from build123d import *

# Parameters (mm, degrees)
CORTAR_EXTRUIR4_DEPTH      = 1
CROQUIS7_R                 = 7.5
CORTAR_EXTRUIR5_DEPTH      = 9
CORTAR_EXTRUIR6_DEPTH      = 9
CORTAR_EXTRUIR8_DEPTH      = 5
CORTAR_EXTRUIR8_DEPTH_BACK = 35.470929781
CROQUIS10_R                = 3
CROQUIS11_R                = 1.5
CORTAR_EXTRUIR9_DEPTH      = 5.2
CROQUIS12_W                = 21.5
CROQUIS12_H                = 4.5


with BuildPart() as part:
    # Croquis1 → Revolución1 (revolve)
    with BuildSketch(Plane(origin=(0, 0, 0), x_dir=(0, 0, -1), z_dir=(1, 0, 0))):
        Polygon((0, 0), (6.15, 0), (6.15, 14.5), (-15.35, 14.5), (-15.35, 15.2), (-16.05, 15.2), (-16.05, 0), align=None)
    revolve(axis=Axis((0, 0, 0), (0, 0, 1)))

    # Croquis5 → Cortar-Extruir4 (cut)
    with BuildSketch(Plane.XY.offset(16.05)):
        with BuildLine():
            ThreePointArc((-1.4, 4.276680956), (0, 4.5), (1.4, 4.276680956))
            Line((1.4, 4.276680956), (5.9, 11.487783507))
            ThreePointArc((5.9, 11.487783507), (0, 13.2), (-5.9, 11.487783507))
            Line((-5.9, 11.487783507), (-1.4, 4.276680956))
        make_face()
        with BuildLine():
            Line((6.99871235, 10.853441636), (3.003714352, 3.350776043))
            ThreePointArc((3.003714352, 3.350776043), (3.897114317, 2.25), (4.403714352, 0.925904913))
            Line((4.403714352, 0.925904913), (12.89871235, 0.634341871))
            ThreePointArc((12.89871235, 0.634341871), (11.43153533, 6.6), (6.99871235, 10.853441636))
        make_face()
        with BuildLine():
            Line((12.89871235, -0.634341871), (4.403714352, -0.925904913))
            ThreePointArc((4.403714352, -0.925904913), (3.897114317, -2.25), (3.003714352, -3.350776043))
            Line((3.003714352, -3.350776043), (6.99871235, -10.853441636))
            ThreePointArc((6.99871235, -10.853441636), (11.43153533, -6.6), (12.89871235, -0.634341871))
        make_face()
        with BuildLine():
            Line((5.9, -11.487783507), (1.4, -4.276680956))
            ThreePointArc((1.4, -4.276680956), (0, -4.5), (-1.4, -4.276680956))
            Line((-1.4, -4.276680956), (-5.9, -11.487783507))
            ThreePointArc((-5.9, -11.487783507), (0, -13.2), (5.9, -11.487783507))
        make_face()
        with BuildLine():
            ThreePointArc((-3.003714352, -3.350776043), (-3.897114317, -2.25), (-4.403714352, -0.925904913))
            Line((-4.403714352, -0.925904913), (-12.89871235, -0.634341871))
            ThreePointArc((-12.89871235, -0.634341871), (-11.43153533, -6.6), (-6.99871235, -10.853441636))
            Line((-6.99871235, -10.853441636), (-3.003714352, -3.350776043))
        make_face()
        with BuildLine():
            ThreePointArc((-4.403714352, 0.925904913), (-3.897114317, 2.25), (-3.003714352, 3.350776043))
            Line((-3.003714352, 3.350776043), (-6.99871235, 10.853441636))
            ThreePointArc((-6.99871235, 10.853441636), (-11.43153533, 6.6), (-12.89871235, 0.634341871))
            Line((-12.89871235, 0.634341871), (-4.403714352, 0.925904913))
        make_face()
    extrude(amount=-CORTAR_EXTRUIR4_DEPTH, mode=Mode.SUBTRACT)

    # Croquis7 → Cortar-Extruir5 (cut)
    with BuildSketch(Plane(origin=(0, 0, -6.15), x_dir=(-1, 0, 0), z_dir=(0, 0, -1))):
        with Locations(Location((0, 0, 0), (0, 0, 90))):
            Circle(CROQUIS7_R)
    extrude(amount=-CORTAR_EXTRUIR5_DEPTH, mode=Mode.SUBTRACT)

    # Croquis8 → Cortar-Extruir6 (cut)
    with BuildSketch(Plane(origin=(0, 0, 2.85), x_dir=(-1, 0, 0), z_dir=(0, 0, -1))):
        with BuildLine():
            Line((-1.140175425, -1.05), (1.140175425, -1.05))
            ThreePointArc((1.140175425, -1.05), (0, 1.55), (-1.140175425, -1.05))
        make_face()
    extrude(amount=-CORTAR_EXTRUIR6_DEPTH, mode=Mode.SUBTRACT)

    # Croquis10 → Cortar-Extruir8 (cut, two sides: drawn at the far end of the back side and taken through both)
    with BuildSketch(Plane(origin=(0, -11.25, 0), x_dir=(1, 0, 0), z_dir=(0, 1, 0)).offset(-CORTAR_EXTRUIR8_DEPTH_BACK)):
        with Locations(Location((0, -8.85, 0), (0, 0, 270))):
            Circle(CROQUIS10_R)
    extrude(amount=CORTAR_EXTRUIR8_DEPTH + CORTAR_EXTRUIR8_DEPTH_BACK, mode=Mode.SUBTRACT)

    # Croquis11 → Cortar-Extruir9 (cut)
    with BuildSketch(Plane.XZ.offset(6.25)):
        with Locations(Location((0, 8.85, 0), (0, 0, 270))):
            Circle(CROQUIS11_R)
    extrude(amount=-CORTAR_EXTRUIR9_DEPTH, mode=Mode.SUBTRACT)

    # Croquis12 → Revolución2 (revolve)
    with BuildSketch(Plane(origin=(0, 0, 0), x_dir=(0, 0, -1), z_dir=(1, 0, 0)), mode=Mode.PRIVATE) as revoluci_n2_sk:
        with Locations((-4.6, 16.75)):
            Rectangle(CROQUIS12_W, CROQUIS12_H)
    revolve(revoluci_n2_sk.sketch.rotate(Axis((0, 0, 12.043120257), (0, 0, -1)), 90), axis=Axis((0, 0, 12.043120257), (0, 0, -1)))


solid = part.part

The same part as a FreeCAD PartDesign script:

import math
import FreeCAD as App
import Part
import Sketcher

V = App.Vector
Q = App.Units.Quantity


def add_polygon(sketch, points):
    """Adds a closed chain of lines whose ends are joined by coincident constraints."""
    first, n = sketch.GeometryCount, len(points)
    for a, b in zip(points, points[1:] + points[:1]):
        sketch.addGeometry(Part.LineSegment(App.Vector(*a, 0), App.Vector(*b, 0)), False)
    for i in range(n):
        sketch.addConstraint(Sketcher.Constraint("Coincident", first + i, 2, first + (i + 1) % n, 1))

doc = App.newDocument("Part")
body = doc.addObject("PartDesign::Body", "Body")

sketch1 = doc.addObject("Sketcher::SketchObject", "Sketch")
body.addObject(sketch1)
sketch1.AttachmentSupport = (doc.YZ_Plane, [""])
sketch1.MapMode = "FlatFace"
add_polygon(sketch1, [(0, -6.2), (14.5, -6.2), (14.5, 15.3), (15.2, 15.3), (15.2, 16.1), (0, 16.1)])
sketch1.addConstraint(Sketcher.Constraint("Horizontal", 0))
sketch1.addConstraint(Sketcher.Constraint("Vertical", 1))
sketch1.addConstraint(Sketcher.Constraint("Horizontal", 2))
sketch1.addConstraint(Sketcher.Constraint("Vertical", 3))
sketch1.addConstraint(Sketcher.Constraint("Horizontal", 4))
sketch1.addConstraint(Sketcher.Constraint("Vertical", 5))
sketch1.addConstraint(Sketcher.Constraint("PointOnObject", 4, 2, -2))
sketch1.addConstraint(Sketcher.Constraint("Equal", 2, 3))
sketch1.addConstraint(Sketcher.Constraint("DistanceX", 0, 1, 0, 2, Q("14.5 mm")))
sketch1.addConstraint(Sketcher.Constraint("DistanceX", 2, 1, 2, 2, Q("0.7 mm")))
sketch1.addConstraint(Sketcher.Constraint("DistanceY", 1, 1, 1, 2, Q("21.5 mm")))
sketch1.addConstraint(Sketcher.Constraint("DistanceY", 0, 2, -1, 1, Q("6.15 mm")))
revolution = doc.addObject("PartDesign::Revolution", "Revolution")
body.addObject(revolution)
revolution.Profile = sketch1
revolution.ReferenceAxis = (sketch1, ["V_Axis"])
revolution.Angle = 360

sketch2 = doc.addObject("Sketcher::SketchObject", "Sketch001")
body.addObject(sketch2)
sketch2.AttachmentSupport = (doc.XY_Plane, [""])
sketch2.MapMode = "FlatFace"
sketch2.AttachmentOffset = App.Placement(V(0, 0, 16.05), App.Rotation())
sketch2.addGeometry(Part.ArcOfCircle(Part.Circle(V(0, 0, 0), V(0, 0, 1), 4.5), math.radians(72), math.radians(108)), False)
sketch2.addGeometry(Part.LineSegment(V(1.4, 4.3, 0), V(5.9, 11.5, 0)), False)
sketch2.addGeometry(Part.ArcOfCircle(Part.Circle(V(0, 2.2, 0), V(0, 0, 1), 11), math.radians(58), math.radians(122)), False)
sketch2.addGeometry(Part.LineSegment(V(-5.9, 11.5, 0), V(-1.4, 4.3, 0)), False)
sketch2.addGeometry(Part.LineSegment(V(7, 10.9, 0), V(3, 3.4, 0)), False)
sketch2.addGeometry(Part.ArcOfCircle(Part.Circle(V(0, 0, 0), V(0, 0, 1), 4.5), math.radians(12), math.radians(48)), False)
sketch2.addGeometry(Part.LineSegment(V(4.4, 0.9, 0), V(12.9, 0.6, 0)), False)
sketch2.addGeometry(Part.ArcOfCircle(Part.Circle(V(1.9, 1.1, 0), V(0, 0, 1), 11), math.radians(-2), math.radians(62)), False)
sketch2.addGeometry(Part.LineSegment(V(12.9, -0.6, 0), V(4.4, -0.9, 0)), False)
sketch2.addGeometry(Part.ArcOfCircle(Part.Circle(V(0, 0, 0), V(0, 0, 1), 4.5), math.radians(-48), math.radians(-12)), False)
sketch2.addGeometry(Part.LineSegment(V(3, -3.4, 0), V(7, -10.9, 0)), False)
sketch2.addGeometry(Part.ArcOfCircle(Part.Circle(V(1.9, -1.1, 0), V(0, 0, 1), 11), math.radians(-62), math.radians(2)), False)
sketch2.addGeometry(Part.LineSegment(V(5.9, -11.5, 0), V(1.4, -4.3, 0)), False)
sketch2.addGeometry(Part.ArcOfCircle(Part.Circle(V(0, 0, 0), V(0, 0, 1), 4.5), math.radians(-108), math.radians(-72)), False)
sketch2.addGeometry(Part.LineSegment(V(-1.4, -4.3, 0), V(-5.9, -11.5, 0)), False)
sketch2.addGeometry(Part.ArcOfCircle(Part.Circle(V(0, -2.2, 0), V(0, 0, 1), 11), math.radians(-122), math.radians(-58)), False)
sketch2.addGeometry(Part.ArcOfCircle(Part.Circle(V(0, 0, 0), V(0, 0, 1), 4.5), math.radians(-168), math.radians(-132)), False)
sketch2.addGeometry(Part.LineSegment(V(-4.4, -0.9, 0), V(-12.9, -0.6, 0)), False)
sketch2.addGeometry(Part.ArcOfCircle(Part.Circle(V(-1.9, -1.1, 0), V(0, 0, 1), 11), math.radians(178), math.radians(242)), False)
sketch2.addGeometry(Part.LineSegment(V(-7, -10.9, 0), V(-3, -3.4, 0)), False)
sketch2.addGeometry(Part.ArcOfCircle(Part.Circle(V(0, 0, 0), V(0, 0, 1), 4.5), math.radians(132), math.radians(168)), False)
sketch2.addGeometry(Part.LineSegment(V(-3, 3.4, 0), V(-7, 10.9, 0)), False)
sketch2.addGeometry(Part.ArcOfCircle(Part.Circle(V(-1.9, 1.1, 0), V(0, 0, 1), 11), math.radians(118), math.radians(182)), False)
sketch2.addGeometry(Part.LineSegment(V(-12.9, 0.6, 0), V(-4.4, 0.9, 0)), False)
sketch2.addConstraint(Sketcher.Constraint("Coincident", 0, 1, 1, 1))
sketch2.addConstraint(Sketcher.Constraint("Coincident", 1, 2, 2, 1))
sketch2.addConstraint(Sketcher.Constraint("Coincident", 2, 2, 3, 1))
sketch2.addConstraint(Sketcher.Constraint("Coincident", 3, 2, 0, 2))
sketch2.addConstraint(Sketcher.Constraint("Coincident", 4, 2, 5, 2))
sketch2.addConstraint(Sketcher.Constraint("Coincident", 5, 1, 6, 1))
sketch2.addConstraint(Sketcher.Constraint("Coincident", 6, 2, 7, 1))
sketch2.addConstraint(Sketcher.Constraint("Coincident", 7, 2, 4, 1))
sketch2.addConstraint(Sketcher.Constraint("Coincident", 8, 2, 9, 2))
sketch2.addConstraint(Sketcher.Constraint("Coincident", 9, 1, 10, 1))
sketch2.addConstraint(Sketcher.Constraint("Coincident", 10, 2, 11, 1))
sketch2.addConstraint(Sketcher.Constraint("Coincident", 11, 2, 8, 1))
sketch2.addConstraint(Sketcher.Constraint("Coincident", 12, 2, 13, 2))
sketch2.addConstraint(Sketcher.Constraint("Coincident", 13, 1, 14, 1))
sketch2.addConstraint(Sketcher.Constraint("Coincident", 14, 2, 15, 1))
sketch2.addConstraint(Sketcher.Constraint("Coincident", 15, 2, 12, 1))
sketch2.addConstraint(Sketcher.Constraint("Coincident", 16, 1, 17, 1))
sketch2.addConstraint(Sketcher.Constraint("Coincident", 17, 2, 18, 1))
sketch2.addConstraint(Sketcher.Constraint("Coincident", 18, 2, 19, 1))
sketch2.addConstraint(Sketcher.Constraint("Coincident", 19, 2, 16, 2))
sketch2.addConstraint(Sketcher.Constraint("Coincident", 20, 1, 21, 1))
sketch2.addConstraint(Sketcher.Constraint("Coincident", 21, 2, 22, 1))
sketch2.addConstraint(Sketcher.Constraint("Coincident", 22, 2, 23, 1))
sketch2.addConstraint(Sketcher.Constraint("Coincident", 23, 2, 20, 2))
sketch2.addConstraint(Sketcher.Constraint("Coincident", 0, 3, -1, 1))
sketch2.addConstraint(Sketcher.Constraint("Coincident", 5, 3, -1, 1))
sketch2.addConstraint(Sketcher.Constraint("Coincident", 9, 3, -1, 1))
sketch2.addConstraint(Sketcher.Constraint("Coincident", 13, 3, -1, 1))
sketch2.addConstraint(Sketcher.Constraint("Coincident", 16, 3, -1, 1))
sketch2.addConstraint(Sketcher.Constraint("Coincident", 20, 3, -1, 1))
sketch2.addConstraint(Sketcher.Constraint("Equal", 0, 5))
sketch2.addConstraint(Sketcher.Constraint("Equal", 2, 7))
sketch2.addConstraint(Sketcher.Constraint("Equal", 5, 9))
sketch2.addConstraint(Sketcher.Constraint("Equal", 7, 11))
sketch2.addConstraint(Sketcher.Constraint("Equal", 9, 13))
sketch2.addConstraint(Sketcher.Constraint("Equal", 11, 15))
sketch2.addConstraint(Sketcher.Constraint("Equal", 13, 16))
sketch2.addConstraint(Sketcher.Constraint("Equal", 15, 18))
sketch2.addConstraint(Sketcher.Constraint("Equal", 16, 20))
sketch2.addConstraint(Sketcher.Constraint("Equal", 18, 22))
sketch2.addConstraint(Sketcher.Constraint("Symmetric", 2, 3, 15, 3, -1, 1))
sketch2.addConstraint(Sketcher.Constraint("Symmetric", 7, 3, 18, 3, -1, 1))
sketch2.addConstraint(Sketcher.Constraint("Symmetric", 11, 3, 22, 3, -1, 1))
sketch2.addConstraint(Sketcher.Constraint("Symmetric", 11, 3, 18, 3, -2))
sketch2.addConstraint(Sketcher.Constraint("Symmetric", 1, 2, 2, 2, -2))
sketch2.addConstraint(Sketcher.Constraint("Parallel", 3, 12))
sketch2.addConstraint(Sketcher.Constraint("Parallel", 1, 14))
sketch2.addConstraint(Sketcher.Constraint("Parallel", 6, 17))
sketch2.addConstraint(Sketcher.Constraint("Parallel", 4, 19))
sketch2.addConstraint(Sketcher.Constraint("Parallel", 10, 21))
sketch2.addConstraint(Sketcher.Constraint("Parallel", 8, 23))
sketch2.addConstraint(Sketcher.Constraint("Horizontal", 0, 1, 3, 2))
sketch2.addConstraint(Sketcher.Constraint("Horizontal", 12, 2, 13, 1))
sketch2.addConstraint(Sketcher.Constraint("Horizontal", 8, 2, 16, 1))
sketch2.addConstraint(Sketcher.Constraint("Horizontal", 11, 2, 17, 2))
sketch2.addConstraint(Sketcher.Constraint("Horizontal", 10, 2, 18, 2))
sketch2.addConstraint(Sketcher.Constraint("Horizontal", 9, 1, 19, 2))
sketch2.addConstraint(Sketcher.Constraint("Horizontal", 4, 2, 20, 1))
sketch2.addConstraint(Sketcher.Constraint("Horizontal", 6, 2, 22, 2))
sketch2.addConstraint(Sketcher.Constraint("Vertical", 5, 1, 8, 2))
sketch2.addConstraint(Sketcher.Constraint("Vertical", 4, 2, 9, 1))
sketch2.addConstraint(Sketcher.Constraint("Vertical", 0, 1, 12, 2))
sketch2.addConstraint(Sketcher.Constraint("Equal", 3, 4))
sketch2.addConstraint(Sketcher.Constraint("Equal", 4, 6))
sketch2.addConstraint(Sketcher.Constraint("Radius", 0, Q("4.5 mm")))
sketch2.addConstraint(Sketcher.Constraint("Distance", 1, Q("8.5 mm")))
sketch2.addConstraint(Sketcher.Constraint("DistanceX", -1, 1, 0, 1, Q("1.4 mm")))
sketch2.addConstraint(Sketcher.Constraint("DistanceX", -1, 1, 1, 2, Q("5.9 mm")))
sketch2.addConstraint(Sketcher.Constraint("DistanceX", 4, 2, 5, 1, Q("1.4 mm")))
sketch2.addConstraint(Sketcher.Constraint("Radius", 2, Q("11.021295 mm")))
sketch2.addConstraint(Sketcher.Constraint("DistanceX", 7, 3, 4, 2, Q("1.1169 mm")))
sketch2.addConstraint(Sketcher.Constraint("DistanceX", 7, 3, 6, 2, Q("11.011898 mm")))
sketch2.addConstraint(Sketcher.Constraint("DistanceX", 11, 3, 10, 2, Q("5.111898 mm")))
pocket1 = doc.addObject("PartDesign::Pocket", "Pocket")
body.addObject(pocket1)
pocket1.Profile = sketch2
pocket1.Length = 1

sketch3 = doc.addObject("Sketcher::SketchObject", "Sketch002")
body.addObject(sketch3)
sketch3.AttachmentSupport = (doc.XY_Plane, [""])
sketch3.MapMode = "FlatFace"
sketch3.AttachmentOffset = App.Placement(V(0, 0, -6.15), App.Rotation())
sketch3.addGeometry(Part.Circle(V(0, 0, 0), V(0, 0, 1), 8), False)
sketch3.addConstraint(Sketcher.Constraint("Coincident", 0, 3, -1, 1))
sketch3.addConstraint(Sketcher.Constraint("Diameter", 0, Q("15 mm")))
pocket2 = doc.addObject("PartDesign::Pocket", "Pocket001")
body.addObject(pocket2)
pocket2.Profile = sketch3
pocket2.Length = 9
pocket2.Reversed = True

sketch4 = doc.addObject("Sketcher::SketchObject", "Sketch003")
body.addObject(sketch4)
sketch4.AttachmentSupport = (doc.XY_Plane, [""])
sketch4.MapMode = "FlatFace"
sketch4.AttachmentOffset = App.Placement(V(0, 0, 2.85), App.Rotation())
sketch4.addGeometry(Part.LineSegment(V(1.1, -1.1, 0), V(-1.1, -1.1, 0)), False)
sketch4.addGeometry(Part.ArcOfCircle(Part.Circle(V(0, 0, 0), V(0, 0, 1), 1.6), math.radians(-43), math.radians(223)), False)
sketch4.addConstraint(Sketcher.Constraint("Coincident", 0, 1, 1, 1))
sketch4.addConstraint(Sketcher.Constraint("Coincident", 1, 2, 0, 2))
sketch4.addConstraint(Sketcher.Constraint("Horizontal", 0))
sketch4.addConstraint(Sketcher.Constraint("Coincident", 1, 3, -1, 1))
sketch4.addConstraint(Sketcher.Constraint("Radius", 1, Q("1.55 mm")))
sketch4.addConstraint(Sketcher.Constraint("DistanceY", 0, 1, -1, 1, Q("1.05 mm")))
pocket3 = doc.addObject("PartDesign::Pocket", "Pocket002")
body.addObject(pocket3)
pocket3.Profile = sketch4
pocket3.Length = 9
pocket3.Reversed = True

sketch5 = doc.addObject("Sketcher::SketchObject", "Sketch004")
body.addObject(sketch5)
sketch5.AttachmentSupport = (doc.XZ_Plane, [""])
sketch5.MapMode = "FlatFace"
sketch5.AttachmentOffset = App.Placement(V(0, 0, 11.25), App.Rotation())
sketch5.addGeometry(Part.Circle(V(0, 8.8, 0), V(0, 0, 1), 3), False)
sketch5.addConstraint(Sketcher.Constraint("PointOnObject", 0, 3, -2))
sketch5.addConstraint(Sketcher.Constraint("Diameter", 0, Q("6 mm")))
sketch5.addConstraint(Sketcher.Constraint("DistanceY", -1, 1, 0, 3, Q("8.85 mm")))
pocket4 = doc.addObject("PartDesign::Pocket", "Pocket003")
body.addObject(pocket4)
pocket4.Profile = sketch5
pocket4.Type = "TwoLengths"
pocket4.Length = 5
pocket4.Length2 = 35.47093

sketch6 = doc.addObject("Sketcher::SketchObject", "Sketch005")
body.addObject(sketch6)
sketch6.AttachmentSupport = (doc.XZ_Plane, [""])
sketch6.MapMode = "FlatFace"
sketch6.AttachmentOffset = App.Placement(V(0, 0, 6.25), App.Rotation())
sketch6.addGeometry(Part.Circle(V(0, 8.8, 0), V(0, 0, 1), 1.5), False)
sketch6.addConstraint(Sketcher.Constraint("PointOnObject", 0, 3, -2))
sketch6.addConstraint(Sketcher.Constraint("Diameter", 0, Q("3 mm")))
sketch6.addConstraint(Sketcher.Constraint("DistanceY", -1, 1, 0, 3, Q("8.85 mm")))
pocket5 = doc.addObject("PartDesign::Pocket", "Pocket004")
body.addObject(pocket5)
pocket5.Profile = sketch6
pocket5.Length = 5.2

sketch7 = doc.addObject("Sketcher::SketchObject", "Sketch006")
body.addObject(sketch7)
sketch7.AttachmentSupport = (doc.YZ_Plane, [""])
sketch7.MapMode = "FlatFace"
add_polygon(sketch7, [(19, 15.3), (14.5, 15.3), (14.5, -6.2), (19, -6.2)])
sketch7.addConstraint(Sketcher.Constraint("Horizontal", 0))
sketch7.addConstraint(Sketcher.Constraint("Vertical", 1))
sketch7.addConstraint(Sketcher.Constraint("Horizontal", 2))
sketch7.addConstraint(Sketcher.Constraint("Vertical", 3))
sketch7.addConstraint(Sketcher.Constraint("DistanceX", 0, 2, 0, 1, Q("4.5 mm")))
sketch7.addConstraint(Sketcher.Constraint("DistanceY", 1, 2, 1, 1, Q("21.5 mm")))
sketch7.addConstraint(Sketcher.Constraint("DistanceX", -1, 1, 2, 2, Q("19 mm")))
sketch7.addConstraint(Sketcher.Constraint("DistanceY", -1, 1, 0, 2, Q("15.35 mm")))
revolution2 = doc.addObject("PartDesign::Revolution", "Revolution001")
body.addObject(revolution2)
revolution2.Profile = sketch7
revolution2.ReferenceAxis = (sketch7, ["V_Axis"])
revolution2.Angle = 360

doc.recompute()
